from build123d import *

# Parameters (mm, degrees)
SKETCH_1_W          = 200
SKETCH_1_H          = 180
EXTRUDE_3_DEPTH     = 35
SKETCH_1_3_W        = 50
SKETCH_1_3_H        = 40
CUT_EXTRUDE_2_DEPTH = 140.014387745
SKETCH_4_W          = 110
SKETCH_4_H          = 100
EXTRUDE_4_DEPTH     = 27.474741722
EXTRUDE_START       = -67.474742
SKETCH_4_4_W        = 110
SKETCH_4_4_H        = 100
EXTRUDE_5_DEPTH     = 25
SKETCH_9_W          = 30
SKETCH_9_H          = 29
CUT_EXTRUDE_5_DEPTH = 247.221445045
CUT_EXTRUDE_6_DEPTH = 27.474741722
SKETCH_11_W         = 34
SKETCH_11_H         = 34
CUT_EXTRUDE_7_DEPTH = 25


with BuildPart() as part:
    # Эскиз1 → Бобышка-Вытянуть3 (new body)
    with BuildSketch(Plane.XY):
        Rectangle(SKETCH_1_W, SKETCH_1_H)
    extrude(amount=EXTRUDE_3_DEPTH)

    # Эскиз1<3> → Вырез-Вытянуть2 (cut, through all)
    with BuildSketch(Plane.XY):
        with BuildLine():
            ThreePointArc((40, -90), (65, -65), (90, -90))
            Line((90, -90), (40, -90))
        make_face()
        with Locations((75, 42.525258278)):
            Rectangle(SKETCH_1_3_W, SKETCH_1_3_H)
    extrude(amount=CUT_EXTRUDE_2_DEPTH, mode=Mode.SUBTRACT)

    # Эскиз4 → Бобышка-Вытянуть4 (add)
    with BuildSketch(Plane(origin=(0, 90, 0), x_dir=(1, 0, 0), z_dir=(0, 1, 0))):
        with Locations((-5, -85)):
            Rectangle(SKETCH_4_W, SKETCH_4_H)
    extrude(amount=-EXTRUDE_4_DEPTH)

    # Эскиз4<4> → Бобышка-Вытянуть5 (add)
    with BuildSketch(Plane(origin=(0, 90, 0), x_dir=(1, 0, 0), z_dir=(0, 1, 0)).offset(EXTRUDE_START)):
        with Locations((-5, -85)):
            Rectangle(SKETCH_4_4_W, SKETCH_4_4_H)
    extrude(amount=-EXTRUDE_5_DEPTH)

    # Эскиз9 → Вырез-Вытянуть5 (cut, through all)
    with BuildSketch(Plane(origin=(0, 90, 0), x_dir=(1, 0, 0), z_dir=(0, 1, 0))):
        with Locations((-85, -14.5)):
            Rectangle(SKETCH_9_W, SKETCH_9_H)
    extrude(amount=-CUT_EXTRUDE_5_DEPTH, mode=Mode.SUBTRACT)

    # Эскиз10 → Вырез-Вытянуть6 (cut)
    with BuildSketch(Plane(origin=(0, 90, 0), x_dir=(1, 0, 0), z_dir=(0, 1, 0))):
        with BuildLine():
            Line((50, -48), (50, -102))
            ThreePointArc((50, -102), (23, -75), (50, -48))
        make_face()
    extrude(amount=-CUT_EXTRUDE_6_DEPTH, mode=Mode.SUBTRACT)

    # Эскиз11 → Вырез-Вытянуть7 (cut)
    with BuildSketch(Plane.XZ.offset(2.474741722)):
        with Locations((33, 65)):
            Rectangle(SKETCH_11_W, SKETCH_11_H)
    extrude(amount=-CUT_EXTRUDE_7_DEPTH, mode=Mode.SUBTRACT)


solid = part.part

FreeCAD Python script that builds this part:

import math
import FreeCAD as App
import Part
import Sketcher

doc = App.newDocument("Part")
body = doc.addObject("PartDesign::Body", "Body")

sketch1 = doc.addObject("Sketcher::SketchObject", "Sketch")
body.addObject(sketch1)
sketch1.AttachmentSupport = (doc.XY_Plane, [""])
sketch1.MapMode = "FlatFace"
sketch1.addGeometry(Part.LineSegment(App.Vector(-100, 90, 0), App.Vector(-100, -90, 0)), False)
sketch1.addGeometry(Part.LineSegment(App.Vector(-100, -90, 0), App.Vector(100, -90, 0)), False)
sketch1.addGeometry(Part.LineSegment(App.Vector(100, -90, 0), App.Vector(100, 90, 0)), False)
sketch1.addGeometry(Part.LineSegment(App.Vector(100, 90, 0), App.Vector(-100, 90, 0)), False)
sketch1.addConstraint(Sketcher.Constraint("Coincident", 0, 2, 1, 1))
sketch1.addConstraint(Sketcher.Constraint("Coincident", 1, 2, 2, 1))
sketch1.addConstraint(Sketcher.Constraint("Coincident", 2, 2, 3, 1))
sketch1.addConstraint(Sketcher.Constraint("Coincident", 3, 2, 0, 1))
sketch1.addConstraint(Sketcher.Constraint("Vertical", 0))
sketch1.addConstraint(Sketcher.Constraint("Horizontal", 1))
sketch1.addConstraint(Sketcher.Constraint("Vertical", 2))
sketch1.addConstraint(Sketcher.Constraint("Horizontal", 3))
sketch1.addConstraint(Sketcher.Constraint("Symmetric", 0, 2, 2, 2, -1, 1))
sketch1.addConstraint(Sketcher.Constraint("DistanceX", 1, 1, 1, 2, 200.0))
sketch1.addConstraint(Sketcher.Constraint("DistanceY", 0, 2, 0, 1, 180.0))
pad1 = doc.addObject("PartDesign::Pad", "Pad")
body.addObject(pad1)
pad1.Profile = sketch1
pad1.Length = 35

sketch2 = doc.addObject("Sketcher::SketchObject", "Sketch001")
body.addObject(sketch2)
sketch2.AttachmentSupport = (doc.XY_Plane, [""])
sketch2.MapMode = "FlatFace"
sketch2.addGeometry(Part.ArcOfCircle(Part.Circle(App.Vector(65, -90, 0), App.Vector(0, 0, 1), 25), math.radians(0), math.radians(180)), False)
sketch2.addGeometry(Part.LineSegment(App.Vector(40, -90, 0), App.Vector(90, -90, 0)), False)
sketch2.addGeometry(Part.LineSegment(App.Vector(50, 63, 0), App.Vector(50, 23, 0)), False)
sketch2.addGeometry(Part.LineSegment(App.Vector(50, 23, 0), App.Vector(100, 23, 0)), False)
sketch2.addGeometry(Part.LineSegment(App.Vector(100, 23, 0), App.Vector(100, 63, 0)), False)
sketch2.addGeometry(Part.LineSegment(App.Vector(100, 63, 0), App.Vector(50, 63, 0)), False)
sketch2.addConstraint(Sketcher.Constraint("Coincident", 0, 1, 1, 2))
sketch2.addConstraint(Sketcher.Constraint("Coincident", 1, 1, 0, 2))
sketch2.addConstraint(Sketcher.Constraint("Coincident", 2, 2, 3, 1))
sketch2.addConstraint(Sketcher.Constraint("Coincident", 3, 2, 4, 1))
sketch2.addConstraint(Sketcher.Constraint("Coincident", 4, 2, 5, 1))
sketch2.addConstraint(Sketcher.Constraint("Coincident", 5, 2, 2, 1))
sketch2.addConstraint(Sketcher.Constraint("Horizontal", 1))
sketch2.addConstraint(Sketcher.Constraint("Vertical", 2))
sketch2.addConstraint(Sketcher.Constraint("Horizontal", 3))
sketch2.addConstraint(Sketcher.Constraint("Vertical", 4))
sketch2.addConstraint(Sketcher.Constraint("Horizontal", 5))
sketch2.addConstraint(Sketcher.Constraint("Equal", 1, 3))
sketch2.addConstraint(Sketcher.Constraint("Radius", 0, 25.0))
sketch2.addConstraint(Sketcher.Constraint("DistanceY", 2, 2, 2, 1, 40.0))
sketch2.addConstraint(Sketcher.Constraint("DistanceX", -1, 1, 0, 3, 65.0))
sketch2.addConstraint(Sketcher.Constraint("DistanceY", 0, 3, -1, 1, 90.0))
sketch2.addConstraint(Sketcher.Constraint("DistanceY", 0, 1, -1, 1, 90.0))
sketch2.addConstraint(Sketcher.Constraint("DistanceX", -1, 1, 2, 2, 50.0))
sketch2.addConstraint(Sketcher.Constraint("DistanceY", -1, 1, 2, 2, 22.525258))
pocket1 = doc.addObject("PartDesign::Pocket", "Pocket")
body.addObject(pocket1)
pocket1.Profile = sketch2
pocket1.Type = "ThroughAll"
pocket1.Reversed = True

sketch3 = doc.addObject("Sketcher::SketchObject", "Sketch002")
body.addObject(sketch3)
sketch3.AttachmentSupport = (doc.XZ_Plane, [""])
sketch3.MapMode = "FlatFace"
sketch3.AttachmentOffset = App.Placement(App.Vector(0, 0, -90), App.Rotation())
sketch3.addGeometry(Part.LineSegment(App.Vector(-60, 35, 0), App.Vector(-60, 135, 0)), False)
sketch3.addGeometry(Part.LineSegment(App.Vector(-60, 135, 0), App.Vector(50, 135, 0)), False)
sketch3.addGeometry(Part.LineSegment(App.Vector(50, 135, 0), App.Vector(50, 35, 0)), False)
sketch3.addGeometry(Part.LineSegment(App.Vector(50, 35, 0), App.Vector(-60, 35, 0)), False)
sketch3.addConstraint(Sketcher.Constraint("Coincident", 0, 2, 1, 1))
sketch3.addConstraint(Sketcher.Constraint("Coincident", 1, 2, 2, 1))
sketch3.addConstraint(Sketcher.Constraint("Coincident", 2, 2, 3, 1))
sketch3.addConstraint(Sketcher.Constraint("Coincident", 3, 2, 0, 1))
sketch3.addConstraint(Sketcher.Constraint("Vertical", 0))
sketch3.addConstraint(Sketcher.Constraint("Horizontal", 1))
sketch3.addConstraint(Sketcher.Constraint("Vertical", 2))
sketch3.addConstraint(Sketcher.Constraint("Horizontal", 3))
sketch3.addConstraint(Sketcher.Constraint("DistanceX", 1, 1, 1, 2, 110.0))
sketch3.addConstraint(Sketcher.Constraint("DistanceY", 0, 1, 0, 2, 100.0))
sketch3.addConstraint(Sketcher.Constraint("DistanceX", 0, 2, -1, 1, 60.0))
sketch3.addConstraint(Sketcher.Constraint("DistanceY", -1, 1, 0, 2, 135.0))
pad2 = doc.addObject("PartDesign::Pad", "Pad001")
body.addObject(pad2)
pad2.Profile = sketch3
pad2.Length = 27.474742

sketch4 = doc.addObject("Sketcher::SketchObject", "Sketch003")
body.addObject(sketch4)
sketch4.AttachmentSupport = (doc.XZ_Plane, [""])
sketch4.MapMode = "FlatFace"
sketch4.AttachmentOffset = App.Placement(App.Vector(0, 0, -22.525258), App.Rotation())
sketch4.addGeometry(Part.LineSegment(App.Vector(-60, 35, 0), App.Vector(-60, 135, 0)), False)
sketch4.addGeometry(Part.LineSegment(App.Vector(-60, 135, 0), App.Vector(50, 135, 0)), False)
sketch4.addGeometry(Part.LineSegment(App.Vector(50, 135, 0), App.Vector(50, 35, 0)), False)
sketch4.addGeometry(Part.LineSegment(App.Vector(50, 35, 0), App.Vector(-60, 35, 0)), False)
sketch4.addConstraint(Sketcher.Constraint("Coincident", 0, 2, 1, 1))
sketch4.addConstraint(Sketcher.Constraint("Coincident", 1, 2, 2, 1))
sketch4.addConstraint(Sketcher.Constraint("Coincident", 2, 2, 3, 1))
sketch4.addConstraint(Sketcher.Constraint("Coincident", 3, 2, 0, 1))
sketch4.addConstraint(Sketcher.Constraint("Vertical", 0))
sketch4.addConstraint(Sketcher.Constraint("Horizontal", 1))
sketch4.addConstraint(Sketcher.Constraint("Vertical", 2))
sketch4.addConstraint(Sketcher.Constraint("Horizontal", 3))
sketch4.addConstraint(Sketcher.Constraint("DistanceX", 1, 1, 1, 2, 110.0))
sketch4.addConstraint(Sketcher.Constraint("DistanceY", 0, 1, 0, 2, 100.0))
sketch4.addConstraint(Sketcher.Constraint("DistanceX", 0, 2, -1, 1, 60.0))
sketch4.addConstraint(Sketcher.Constraint("DistanceY", -1, 1, 0, 2, 135.0))
pad3 = doc.addObject("PartDesign::Pad", "Pad002")
body.addObject(pad3)
pad3.Profile = sketch4
pad3.Length = 25

sketch5 = doc.addObject("Sketcher::SketchObject", "Sketch004")
body.addObject(sketch5)
sketch5.AttachmentSupport = (doc.XZ_Plane, [""])
sketch5.MapMode = "FlatFace"
sketch5.AttachmentOffset = App.Placement(App.Vector(0, 0, -90), App.Rotation())
sketch5.addGeometry(Part.LineSegment(App.Vector(-100, 0, 0), App.Vector(-100, 29, 0)), False)
sketch5.addGeometry(Part.LineSegment(App.Vector(-100, 29, 0), App.Vector(-70, 29, 0)), False)
sketch5.addGeometry(Part.LineSegment(App.Vector(-70, 29, 0), App.Vector(-70, 0, 0)), False)
sketch5.addGeometry(Part.LineSegment(App.Vector(-70, 0, 0), App.Vector(-100, 0, 0)), False)
sketch5.addConstraint(Sketcher.Constraint("Coincident", 0, 2, 1, 1))
sketch5.addConstraint(Sketcher.Constraint("Coincident", 1, 2, 2, 1))
sketch5.addConstraint(Sketcher.Constraint("Coincident", 2, 2, 3, 1))
sketch5.addConstraint(Sketcher.Constraint("Coincident", 3, 2, 0, 1))
sketch5.addConstraint(Sketcher.Constraint("Vertical", 0))
sketch5.addConstraint(Sketcher.Constraint("Horizontal", 1))
sketch5.addConstraint(Sketcher.Constraint("Vertical", 2))
sketch5.addConstraint(Sketcher.Constraint("Horizontal", 3))
sketch5.addConstraint(Sketcher.Constraint("PointOnObject", 2, 2, -1))
sketch5.addConstraint(Sketcher.Constraint("DistanceX", 1, 1, 1, 2, 30.0))
sketch5.addConstraint(Sketcher.Constraint("DistanceY", 0, 1, 0, 2, 29.0))
sketch5.addConstraint(Sketcher.Constraint("DistanceX", 0, 2, -1, 1, 100.0))
pocket2 = doc.addObject("PartDesign::Pocket", "Pocket001")
body.addObject(pocket2)
pocket2.Profile = sketch5
pocket2.Type = "ThroughAll"
pocket2.Reversed = True

sketch6 = doc.addObject("Sketcher::SketchObject", "Sketch005")
body.addObject(sketch6)
sketch6.AttachmentSupport = (doc.XZ_Plane, [""])
sketch6.MapMode = "FlatFace"
sketch6.AttachmentOffset = App.Placement(App.Vector(0, 0, -90), App.Rotation())
sketch6.addGeometry(Part.LineSegment(App.Vector(50, 102, 0), App.Vector(50, 48, 0)), False)
sketch6.addGeometry(Part.ArcOfCircle(Part.Circle(App.Vector(50, 75, 0), App.Vector(0, 0, 1), 27), math.radians(90), math.radians(270)), False)
sketch6.addConstraint(Sketcher.Constraint("Coincident", 0, 1, 1, 1))
sketch6.addConstraint(Sketcher.Constraint("Coincident", 1, 2, 0, 2))
sketch6.addConstraint(Sketcher.Constraint("Vertical", 0))
sketch6.addConstraint(Sketcher.Constraint("Vertical", 1, 3, 0, 1))
sketch6.addConstraint(Sketcher.Constraint("Radius", 1, 27.0))
sketch6.addConstraint(Sketcher.Constraint("DistanceX", -1, 1, 1, 3, 50.0))
sketch6.addConstraint(Sketcher.Constraint("DistanceY", -1, 1, 1, 3, 75.0))
pocket3 = doc.addObject("PartDesign::Pocket", "Pocket002")
body.addObject(pocket3)
pocket3.Profile = sketch6
pocket3.Length = 27.474742
pocket3.Reversed = True

sketch7 = doc.addObject("Sketcher::SketchObject", "Sketch006")
body.addObject(sketch7)
sketch7.AttachmentSupport = (doc.XZ_Plane, [""])
sketch7.MapMode = "FlatFace"
sketch7.AttachmentOffset = App.Placement(App.Vector(0, 0, 2.474742), App.Rotation())
sketch7.addGeometry(Part.LineSegment(App.Vector(16, 82, 0), App.Vector(16, 48, 0)), False)
sketch7.addGeometry(Part.LineSegment(App.Vector(16, 48, 0), App.Vector(50, 48, 0)), False)
sketch7.addGeometry(Part.LineSegment(App.Vector(50, 48, 0), App.Vector(50, 82, 0)), False)
sketch7.addGeometry(Part.LineSegment(App.Vector(50, 82, 0), App.Vector(16, 82, 0)), False)
sketch7.addConstraint(Sketcher.Constraint("Coincident", 0, 2, 1, 1))
sketch7.addConstraint(Sketcher.Constraint("Coincident", 1, 2, 2, 1))
sketch7.addConstraint(Sketcher.Constraint("Coincident", 2, 2, 3, 1))
sketch7.addConstraint(Sketcher.Constraint("Coincident", 3, 2, 0, 1))
sketch7.addConstraint(Sketcher.Constraint("Vertical", 0))
sketch7.addConstraint(Sketcher.Constraint("Horizontal", 1))
sketch7.addConstraint(Sketcher.Constraint("Vertical", 2))
sketch7.addConstraint(Sketcher.Constraint("Horizontal", 3))
sketch7.addConstraint(Sketcher.Constraint("Equal", 3, 0))
sketch7.addConstraint(Sketcher.Constraint("DistanceX", 1, 1, 1, 2, 34.0))
sketch7.addConstraint(Sketcher.Constraint("DistanceX", -1, 1, 0, 2, 16.0))
sketch7.addConstraint(Sketcher.Constraint("DistanceY", -1, 1, 0, 2, 48.0))
pocket4 = doc.addObject("PartDesign::Pocket", "Pocket003")
body.addObject(pocket4)
pocket4.Profile = sketch7
pocket4.Length = 25

doc.recompute()
